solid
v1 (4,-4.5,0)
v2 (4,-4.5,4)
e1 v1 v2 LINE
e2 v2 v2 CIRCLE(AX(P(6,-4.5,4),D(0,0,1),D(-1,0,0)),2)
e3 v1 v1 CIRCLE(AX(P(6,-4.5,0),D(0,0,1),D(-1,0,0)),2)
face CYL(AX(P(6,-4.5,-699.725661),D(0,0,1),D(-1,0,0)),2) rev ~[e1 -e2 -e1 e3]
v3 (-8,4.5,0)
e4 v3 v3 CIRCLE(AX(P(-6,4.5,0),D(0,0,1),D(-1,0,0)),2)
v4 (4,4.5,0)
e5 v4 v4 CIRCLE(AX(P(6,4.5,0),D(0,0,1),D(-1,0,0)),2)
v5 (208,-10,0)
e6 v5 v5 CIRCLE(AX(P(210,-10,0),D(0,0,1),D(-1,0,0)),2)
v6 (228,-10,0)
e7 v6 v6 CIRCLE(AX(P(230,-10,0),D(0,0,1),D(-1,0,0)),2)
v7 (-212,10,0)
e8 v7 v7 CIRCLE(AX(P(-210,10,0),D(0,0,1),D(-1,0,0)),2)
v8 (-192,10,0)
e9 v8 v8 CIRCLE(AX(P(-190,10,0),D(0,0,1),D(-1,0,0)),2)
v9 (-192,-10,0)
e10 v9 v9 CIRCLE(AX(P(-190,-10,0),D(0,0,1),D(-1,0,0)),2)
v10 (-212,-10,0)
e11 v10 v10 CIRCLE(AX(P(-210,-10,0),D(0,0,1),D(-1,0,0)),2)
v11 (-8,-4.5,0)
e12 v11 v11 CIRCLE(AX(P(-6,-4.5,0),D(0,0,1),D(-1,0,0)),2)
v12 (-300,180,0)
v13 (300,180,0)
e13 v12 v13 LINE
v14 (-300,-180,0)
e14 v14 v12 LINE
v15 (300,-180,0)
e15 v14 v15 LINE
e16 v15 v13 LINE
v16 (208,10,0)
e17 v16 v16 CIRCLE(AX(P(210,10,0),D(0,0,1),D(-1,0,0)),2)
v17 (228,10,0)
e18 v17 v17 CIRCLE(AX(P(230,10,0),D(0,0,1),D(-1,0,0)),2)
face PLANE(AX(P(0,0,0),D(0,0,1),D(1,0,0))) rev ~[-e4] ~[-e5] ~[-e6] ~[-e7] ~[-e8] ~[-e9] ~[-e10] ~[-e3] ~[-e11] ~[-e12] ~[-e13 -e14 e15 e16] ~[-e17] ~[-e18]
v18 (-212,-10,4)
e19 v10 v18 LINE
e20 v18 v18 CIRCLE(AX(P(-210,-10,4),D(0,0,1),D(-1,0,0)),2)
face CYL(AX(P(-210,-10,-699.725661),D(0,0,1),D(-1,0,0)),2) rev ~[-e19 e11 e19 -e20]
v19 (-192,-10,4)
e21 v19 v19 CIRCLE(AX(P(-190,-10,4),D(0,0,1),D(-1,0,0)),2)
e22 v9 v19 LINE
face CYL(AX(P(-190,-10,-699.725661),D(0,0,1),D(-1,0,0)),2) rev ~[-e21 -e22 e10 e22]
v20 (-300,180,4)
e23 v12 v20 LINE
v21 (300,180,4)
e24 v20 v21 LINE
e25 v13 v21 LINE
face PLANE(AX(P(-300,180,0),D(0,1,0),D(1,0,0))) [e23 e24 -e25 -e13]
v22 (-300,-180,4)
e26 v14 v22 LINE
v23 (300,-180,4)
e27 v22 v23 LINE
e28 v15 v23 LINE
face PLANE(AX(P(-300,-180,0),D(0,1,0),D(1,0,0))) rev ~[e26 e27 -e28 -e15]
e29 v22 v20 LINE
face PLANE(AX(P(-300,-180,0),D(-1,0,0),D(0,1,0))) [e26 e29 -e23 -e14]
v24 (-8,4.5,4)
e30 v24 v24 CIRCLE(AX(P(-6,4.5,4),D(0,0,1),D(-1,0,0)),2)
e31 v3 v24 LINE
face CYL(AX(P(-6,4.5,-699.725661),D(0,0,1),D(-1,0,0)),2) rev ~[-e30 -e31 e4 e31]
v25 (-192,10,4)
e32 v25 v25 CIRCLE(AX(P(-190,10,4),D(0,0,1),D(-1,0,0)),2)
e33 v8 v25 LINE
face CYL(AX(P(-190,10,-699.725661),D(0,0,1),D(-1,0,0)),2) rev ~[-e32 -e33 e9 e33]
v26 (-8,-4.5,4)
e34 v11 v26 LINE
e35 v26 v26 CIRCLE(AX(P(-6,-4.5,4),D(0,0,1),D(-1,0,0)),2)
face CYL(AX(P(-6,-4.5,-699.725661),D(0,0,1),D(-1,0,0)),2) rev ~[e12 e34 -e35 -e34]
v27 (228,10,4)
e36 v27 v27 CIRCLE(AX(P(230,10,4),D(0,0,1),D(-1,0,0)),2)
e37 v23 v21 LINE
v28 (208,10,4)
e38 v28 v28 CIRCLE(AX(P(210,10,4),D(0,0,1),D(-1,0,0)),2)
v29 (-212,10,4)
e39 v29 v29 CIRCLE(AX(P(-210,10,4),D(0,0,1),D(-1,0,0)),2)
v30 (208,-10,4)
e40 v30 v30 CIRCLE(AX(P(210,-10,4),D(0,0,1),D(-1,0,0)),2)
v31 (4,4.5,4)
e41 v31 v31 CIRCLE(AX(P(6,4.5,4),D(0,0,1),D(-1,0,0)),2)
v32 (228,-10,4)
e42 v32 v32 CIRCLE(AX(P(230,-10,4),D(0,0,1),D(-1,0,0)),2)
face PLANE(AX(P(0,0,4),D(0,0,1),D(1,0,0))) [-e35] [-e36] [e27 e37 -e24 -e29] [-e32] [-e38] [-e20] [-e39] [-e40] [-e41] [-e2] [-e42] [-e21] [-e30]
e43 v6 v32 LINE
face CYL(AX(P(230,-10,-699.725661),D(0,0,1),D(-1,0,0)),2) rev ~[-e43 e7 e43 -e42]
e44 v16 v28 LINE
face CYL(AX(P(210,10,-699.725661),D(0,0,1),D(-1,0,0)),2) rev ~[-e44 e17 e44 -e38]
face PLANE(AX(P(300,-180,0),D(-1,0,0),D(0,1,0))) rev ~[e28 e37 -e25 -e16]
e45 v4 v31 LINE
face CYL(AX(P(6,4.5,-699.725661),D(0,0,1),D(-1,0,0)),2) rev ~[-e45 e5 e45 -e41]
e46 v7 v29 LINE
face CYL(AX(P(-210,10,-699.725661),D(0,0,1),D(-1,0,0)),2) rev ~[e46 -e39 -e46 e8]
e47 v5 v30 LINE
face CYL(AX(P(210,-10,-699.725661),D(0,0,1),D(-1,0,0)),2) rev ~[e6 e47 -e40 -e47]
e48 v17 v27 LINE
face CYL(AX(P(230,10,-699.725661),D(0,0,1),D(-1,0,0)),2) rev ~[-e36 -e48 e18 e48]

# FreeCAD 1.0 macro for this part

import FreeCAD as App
import Part
import Sketcher
Q = App.Units.Quantity


def add_polygon(sketch, points):
    """Adds a closed chain of lines whose ends are joined by coincident constraints."""
    first, n = sketch.GeometryCount, len(points)
    for a, b in zip(points, points[1:] + points[:1]):
        sketch.addGeometry(Part.LineSegment(App.Vector(*a, 0), App.Vector(*b, 0)), False)
    for i in range(n):
        sketch.addConstraint(Sketcher.Constraint("Coincident", first + i, 2, first + (i + 1) % n, 1))

doc = App.newDocument("Part")
body = doc.addObject("PartDesign::Body", "Body")

# Sketch on XY plane
sketch1 = doc.addObject("Sketcher::SketchObject", "Sketch")
body.addObject(sketch1)
sketch1.AttachmentSupport = (doc.XY_Plane, [""])
sketch1.MapMode = "FlatFace"
add_polygon(sketch1, [(-300, 180), (-300, -180), (300, -180), (300, 180)])  # lines 0-3
sketch1.addConstraint(Sketcher.Constraint("Vertical", 0))
sketch1.addConstraint(Sketcher.Constraint("Horizontal", 1))
sketch1.addConstraint(Sketcher.Constraint("Vertical", 2))
sketch1.addConstraint(Sketcher.Constraint("Horizontal", 3))
sketch1.addConstraint(Sketcher.Constraint("Symmetric", 0, 2, 2, 2, -1, 1))
sketch1.addConstraint(Sketcher.Constraint("DistanceX", 1, 1, 1, 2, Q("600 mm")))
sketch1.addConstraint(Sketcher.Constraint("DistanceY", 0, 2, 0, 1, Q("360 mm")))
pad1 = doc.addObject("PartDesign::Pad", "Pad")
body.addObject(pad1)
pad1.Profile = sketch1
pad1.Length = 4

# Sketch on XY plane
sketch2 = doc.addObject("Sketcher::SketchObject", "Sketch001")
body.addObject(sketch2)
sketch2.AttachmentSupport = (doc.XY_Plane, [""])
sketch2.MapMode = "FlatFace"
sketch2.addGeometry(Part.Circle(App.Vector(-210, -10, 0), App.Vector(0, 0, 1), 2), False)
sketch2.addGeometry(Part.Circle(App.Vector(-190, -10, 0), App.Vector(0, 0, 1), 2), False)
sketch2.addGeometry(Part.Circle(App.Vector(-210, 10, 0), App.Vector(0, 0, 1), 2), False)
sketch2.addGeometry(Part.Circle(App.Vector(-190, 10, 0), App.Vector(0, 0, 1), 2), False)
sketch2.addGeometry(Part.Circle(App.Vector(230, -10, 0), App.Vector(0, 0, 1), 2), False)
sketch2.addGeometry(Part.Circle(App.Vector(210, -10, 0), App.Vector(0, 0, 1), 2), False)
sketch2.addGeometry(Part.Circle(App.Vector(210, 10, 0), App.Vector(0, 0, 1), 2), False)
sketch2.addGeometry(Part.Circle(App.Vector(230, 10, 0), App.Vector(0, 0, 1), 2), False)
sketch2.addGeometry(Part.Circle(App.Vector(-6, -4.5, 0), App.Vector(0, 0, 1), 2), False)
sketch2.addGeometry(Part.Circle(App.Vector(-6, 4.5, 0), App.Vector(0, 0, 1), 2), False)
sketch2.addGeometry(Part.Circle(App.Vector(6, 4.5, 0), App.Vector(0, 0, 1), 2), False)
sketch2.addGeometry(Part.Circle(App.Vector(6, -4.5, 0), App.Vector(0, 0, 1), 2), False)
sketch2.addConstraint(Sketcher.Constraint("Equal", 0, 1))
sketch2.addConstraint(Sketcher.Constraint("Equal", 1, 2))
sketch2.addConstraint(Sketcher.Constraint("Equal", 2, 3))
sketch2.addConstraint(Sketcher.Constraint("Equal", 3, 4))
sketch2.addConstraint(Sketcher.Constraint("Equal", 4, 5))
sketch2.addConstraint(Sketcher.Constraint("Equal", 5, 6))
sketch2.addConstraint(Sketcher.Constraint("Equal", 6, 7))
sketch2.addConstraint(Sketcher.Constraint("Equal", 7, 8))
sketch2.addConstraint(Sketcher.Constraint("Equal", 8, 9))
sketch2.addConstraint(Sketcher.Constraint("Equal", 9, 10))
sketch2.addConstraint(Sketcher.Constraint("Equal", 10, 11))
sketch2.addConstraint(Sketcher.Constraint("Symmetric", 2, 3, 5, 3, -1, 1))
sketch2.addConstraint(Sketcher.Constraint("Symmetric", 0, 3, 6, 3, -1, 1))
sketch2.addConstraint(Sketcher.Constraint("Symmetric", 8, 3, 10, 3, -1, 1))
sketch2.addConstraint(Sketcher.Constraint("Symmetric", 9, 3, 11, 3, -1, 1))
sketch2.addConstraint(Sketcher.Constraint("Symmetric", 0, 3, 5, 3, -2))
sketch2.addConstraint(Sketcher.Constraint("Symmetric", 9, 3, 10, 3, -2))
sketch2.addConstraint(Sketcher.Constraint("Symmetric", 1, 3, 3, 3, -1))
sketch2.addConstraint(Sketcher.Constraint("Symmetric", 4, 3, 7, 3, -1))
sketch2.addConstraint(Sketcher.Constraint("Horizontal", 0, 3, 1, 3))
sketch2.addConstraint(Sketcher.Constraint("Horizontal", 1, 3, 4, 3))
sketch2.addConstraint(Sketcher.Constraint("Diameter", 0, Q("4 mm")))
sketch2.addConstraint(Sketcher.Constraint("DistanceX", 0, 3, -1, 1, Q("210 mm")))
sketch2.addConstraint(Sketcher.Constraint("DistanceY", 0, 3, -1, 1, Q("10 mm")))
sketch2.addConstraint(Sketcher.Constraint("DistanceX", 1, 3, -1, 1, Q("190 mm")))
sketch2.addConstraint(Sketcher.Constraint("DistanceX", -1, 1, 4, 3, Q("230 mm")))
sketch2.addConstraint(Sketcher.Constraint("DistanceX", 8, 3, -1, 1, Q("6 mm")))
sketch2.addConstraint(Sketcher.Constraint("DistanceY", 8, 3, 9, 3, Q("9 mm")))
doc.recompute()
hole = doc.addObject("PartDesign::Hole", "Hole")
body.addObject(hole)
hole.Profile = sketch2
hole.ThreadType = "None"
hole.Diameter = 4
hole.DepthType = "ThroughAll"
hole.Reversed = True

doc.recompute()
